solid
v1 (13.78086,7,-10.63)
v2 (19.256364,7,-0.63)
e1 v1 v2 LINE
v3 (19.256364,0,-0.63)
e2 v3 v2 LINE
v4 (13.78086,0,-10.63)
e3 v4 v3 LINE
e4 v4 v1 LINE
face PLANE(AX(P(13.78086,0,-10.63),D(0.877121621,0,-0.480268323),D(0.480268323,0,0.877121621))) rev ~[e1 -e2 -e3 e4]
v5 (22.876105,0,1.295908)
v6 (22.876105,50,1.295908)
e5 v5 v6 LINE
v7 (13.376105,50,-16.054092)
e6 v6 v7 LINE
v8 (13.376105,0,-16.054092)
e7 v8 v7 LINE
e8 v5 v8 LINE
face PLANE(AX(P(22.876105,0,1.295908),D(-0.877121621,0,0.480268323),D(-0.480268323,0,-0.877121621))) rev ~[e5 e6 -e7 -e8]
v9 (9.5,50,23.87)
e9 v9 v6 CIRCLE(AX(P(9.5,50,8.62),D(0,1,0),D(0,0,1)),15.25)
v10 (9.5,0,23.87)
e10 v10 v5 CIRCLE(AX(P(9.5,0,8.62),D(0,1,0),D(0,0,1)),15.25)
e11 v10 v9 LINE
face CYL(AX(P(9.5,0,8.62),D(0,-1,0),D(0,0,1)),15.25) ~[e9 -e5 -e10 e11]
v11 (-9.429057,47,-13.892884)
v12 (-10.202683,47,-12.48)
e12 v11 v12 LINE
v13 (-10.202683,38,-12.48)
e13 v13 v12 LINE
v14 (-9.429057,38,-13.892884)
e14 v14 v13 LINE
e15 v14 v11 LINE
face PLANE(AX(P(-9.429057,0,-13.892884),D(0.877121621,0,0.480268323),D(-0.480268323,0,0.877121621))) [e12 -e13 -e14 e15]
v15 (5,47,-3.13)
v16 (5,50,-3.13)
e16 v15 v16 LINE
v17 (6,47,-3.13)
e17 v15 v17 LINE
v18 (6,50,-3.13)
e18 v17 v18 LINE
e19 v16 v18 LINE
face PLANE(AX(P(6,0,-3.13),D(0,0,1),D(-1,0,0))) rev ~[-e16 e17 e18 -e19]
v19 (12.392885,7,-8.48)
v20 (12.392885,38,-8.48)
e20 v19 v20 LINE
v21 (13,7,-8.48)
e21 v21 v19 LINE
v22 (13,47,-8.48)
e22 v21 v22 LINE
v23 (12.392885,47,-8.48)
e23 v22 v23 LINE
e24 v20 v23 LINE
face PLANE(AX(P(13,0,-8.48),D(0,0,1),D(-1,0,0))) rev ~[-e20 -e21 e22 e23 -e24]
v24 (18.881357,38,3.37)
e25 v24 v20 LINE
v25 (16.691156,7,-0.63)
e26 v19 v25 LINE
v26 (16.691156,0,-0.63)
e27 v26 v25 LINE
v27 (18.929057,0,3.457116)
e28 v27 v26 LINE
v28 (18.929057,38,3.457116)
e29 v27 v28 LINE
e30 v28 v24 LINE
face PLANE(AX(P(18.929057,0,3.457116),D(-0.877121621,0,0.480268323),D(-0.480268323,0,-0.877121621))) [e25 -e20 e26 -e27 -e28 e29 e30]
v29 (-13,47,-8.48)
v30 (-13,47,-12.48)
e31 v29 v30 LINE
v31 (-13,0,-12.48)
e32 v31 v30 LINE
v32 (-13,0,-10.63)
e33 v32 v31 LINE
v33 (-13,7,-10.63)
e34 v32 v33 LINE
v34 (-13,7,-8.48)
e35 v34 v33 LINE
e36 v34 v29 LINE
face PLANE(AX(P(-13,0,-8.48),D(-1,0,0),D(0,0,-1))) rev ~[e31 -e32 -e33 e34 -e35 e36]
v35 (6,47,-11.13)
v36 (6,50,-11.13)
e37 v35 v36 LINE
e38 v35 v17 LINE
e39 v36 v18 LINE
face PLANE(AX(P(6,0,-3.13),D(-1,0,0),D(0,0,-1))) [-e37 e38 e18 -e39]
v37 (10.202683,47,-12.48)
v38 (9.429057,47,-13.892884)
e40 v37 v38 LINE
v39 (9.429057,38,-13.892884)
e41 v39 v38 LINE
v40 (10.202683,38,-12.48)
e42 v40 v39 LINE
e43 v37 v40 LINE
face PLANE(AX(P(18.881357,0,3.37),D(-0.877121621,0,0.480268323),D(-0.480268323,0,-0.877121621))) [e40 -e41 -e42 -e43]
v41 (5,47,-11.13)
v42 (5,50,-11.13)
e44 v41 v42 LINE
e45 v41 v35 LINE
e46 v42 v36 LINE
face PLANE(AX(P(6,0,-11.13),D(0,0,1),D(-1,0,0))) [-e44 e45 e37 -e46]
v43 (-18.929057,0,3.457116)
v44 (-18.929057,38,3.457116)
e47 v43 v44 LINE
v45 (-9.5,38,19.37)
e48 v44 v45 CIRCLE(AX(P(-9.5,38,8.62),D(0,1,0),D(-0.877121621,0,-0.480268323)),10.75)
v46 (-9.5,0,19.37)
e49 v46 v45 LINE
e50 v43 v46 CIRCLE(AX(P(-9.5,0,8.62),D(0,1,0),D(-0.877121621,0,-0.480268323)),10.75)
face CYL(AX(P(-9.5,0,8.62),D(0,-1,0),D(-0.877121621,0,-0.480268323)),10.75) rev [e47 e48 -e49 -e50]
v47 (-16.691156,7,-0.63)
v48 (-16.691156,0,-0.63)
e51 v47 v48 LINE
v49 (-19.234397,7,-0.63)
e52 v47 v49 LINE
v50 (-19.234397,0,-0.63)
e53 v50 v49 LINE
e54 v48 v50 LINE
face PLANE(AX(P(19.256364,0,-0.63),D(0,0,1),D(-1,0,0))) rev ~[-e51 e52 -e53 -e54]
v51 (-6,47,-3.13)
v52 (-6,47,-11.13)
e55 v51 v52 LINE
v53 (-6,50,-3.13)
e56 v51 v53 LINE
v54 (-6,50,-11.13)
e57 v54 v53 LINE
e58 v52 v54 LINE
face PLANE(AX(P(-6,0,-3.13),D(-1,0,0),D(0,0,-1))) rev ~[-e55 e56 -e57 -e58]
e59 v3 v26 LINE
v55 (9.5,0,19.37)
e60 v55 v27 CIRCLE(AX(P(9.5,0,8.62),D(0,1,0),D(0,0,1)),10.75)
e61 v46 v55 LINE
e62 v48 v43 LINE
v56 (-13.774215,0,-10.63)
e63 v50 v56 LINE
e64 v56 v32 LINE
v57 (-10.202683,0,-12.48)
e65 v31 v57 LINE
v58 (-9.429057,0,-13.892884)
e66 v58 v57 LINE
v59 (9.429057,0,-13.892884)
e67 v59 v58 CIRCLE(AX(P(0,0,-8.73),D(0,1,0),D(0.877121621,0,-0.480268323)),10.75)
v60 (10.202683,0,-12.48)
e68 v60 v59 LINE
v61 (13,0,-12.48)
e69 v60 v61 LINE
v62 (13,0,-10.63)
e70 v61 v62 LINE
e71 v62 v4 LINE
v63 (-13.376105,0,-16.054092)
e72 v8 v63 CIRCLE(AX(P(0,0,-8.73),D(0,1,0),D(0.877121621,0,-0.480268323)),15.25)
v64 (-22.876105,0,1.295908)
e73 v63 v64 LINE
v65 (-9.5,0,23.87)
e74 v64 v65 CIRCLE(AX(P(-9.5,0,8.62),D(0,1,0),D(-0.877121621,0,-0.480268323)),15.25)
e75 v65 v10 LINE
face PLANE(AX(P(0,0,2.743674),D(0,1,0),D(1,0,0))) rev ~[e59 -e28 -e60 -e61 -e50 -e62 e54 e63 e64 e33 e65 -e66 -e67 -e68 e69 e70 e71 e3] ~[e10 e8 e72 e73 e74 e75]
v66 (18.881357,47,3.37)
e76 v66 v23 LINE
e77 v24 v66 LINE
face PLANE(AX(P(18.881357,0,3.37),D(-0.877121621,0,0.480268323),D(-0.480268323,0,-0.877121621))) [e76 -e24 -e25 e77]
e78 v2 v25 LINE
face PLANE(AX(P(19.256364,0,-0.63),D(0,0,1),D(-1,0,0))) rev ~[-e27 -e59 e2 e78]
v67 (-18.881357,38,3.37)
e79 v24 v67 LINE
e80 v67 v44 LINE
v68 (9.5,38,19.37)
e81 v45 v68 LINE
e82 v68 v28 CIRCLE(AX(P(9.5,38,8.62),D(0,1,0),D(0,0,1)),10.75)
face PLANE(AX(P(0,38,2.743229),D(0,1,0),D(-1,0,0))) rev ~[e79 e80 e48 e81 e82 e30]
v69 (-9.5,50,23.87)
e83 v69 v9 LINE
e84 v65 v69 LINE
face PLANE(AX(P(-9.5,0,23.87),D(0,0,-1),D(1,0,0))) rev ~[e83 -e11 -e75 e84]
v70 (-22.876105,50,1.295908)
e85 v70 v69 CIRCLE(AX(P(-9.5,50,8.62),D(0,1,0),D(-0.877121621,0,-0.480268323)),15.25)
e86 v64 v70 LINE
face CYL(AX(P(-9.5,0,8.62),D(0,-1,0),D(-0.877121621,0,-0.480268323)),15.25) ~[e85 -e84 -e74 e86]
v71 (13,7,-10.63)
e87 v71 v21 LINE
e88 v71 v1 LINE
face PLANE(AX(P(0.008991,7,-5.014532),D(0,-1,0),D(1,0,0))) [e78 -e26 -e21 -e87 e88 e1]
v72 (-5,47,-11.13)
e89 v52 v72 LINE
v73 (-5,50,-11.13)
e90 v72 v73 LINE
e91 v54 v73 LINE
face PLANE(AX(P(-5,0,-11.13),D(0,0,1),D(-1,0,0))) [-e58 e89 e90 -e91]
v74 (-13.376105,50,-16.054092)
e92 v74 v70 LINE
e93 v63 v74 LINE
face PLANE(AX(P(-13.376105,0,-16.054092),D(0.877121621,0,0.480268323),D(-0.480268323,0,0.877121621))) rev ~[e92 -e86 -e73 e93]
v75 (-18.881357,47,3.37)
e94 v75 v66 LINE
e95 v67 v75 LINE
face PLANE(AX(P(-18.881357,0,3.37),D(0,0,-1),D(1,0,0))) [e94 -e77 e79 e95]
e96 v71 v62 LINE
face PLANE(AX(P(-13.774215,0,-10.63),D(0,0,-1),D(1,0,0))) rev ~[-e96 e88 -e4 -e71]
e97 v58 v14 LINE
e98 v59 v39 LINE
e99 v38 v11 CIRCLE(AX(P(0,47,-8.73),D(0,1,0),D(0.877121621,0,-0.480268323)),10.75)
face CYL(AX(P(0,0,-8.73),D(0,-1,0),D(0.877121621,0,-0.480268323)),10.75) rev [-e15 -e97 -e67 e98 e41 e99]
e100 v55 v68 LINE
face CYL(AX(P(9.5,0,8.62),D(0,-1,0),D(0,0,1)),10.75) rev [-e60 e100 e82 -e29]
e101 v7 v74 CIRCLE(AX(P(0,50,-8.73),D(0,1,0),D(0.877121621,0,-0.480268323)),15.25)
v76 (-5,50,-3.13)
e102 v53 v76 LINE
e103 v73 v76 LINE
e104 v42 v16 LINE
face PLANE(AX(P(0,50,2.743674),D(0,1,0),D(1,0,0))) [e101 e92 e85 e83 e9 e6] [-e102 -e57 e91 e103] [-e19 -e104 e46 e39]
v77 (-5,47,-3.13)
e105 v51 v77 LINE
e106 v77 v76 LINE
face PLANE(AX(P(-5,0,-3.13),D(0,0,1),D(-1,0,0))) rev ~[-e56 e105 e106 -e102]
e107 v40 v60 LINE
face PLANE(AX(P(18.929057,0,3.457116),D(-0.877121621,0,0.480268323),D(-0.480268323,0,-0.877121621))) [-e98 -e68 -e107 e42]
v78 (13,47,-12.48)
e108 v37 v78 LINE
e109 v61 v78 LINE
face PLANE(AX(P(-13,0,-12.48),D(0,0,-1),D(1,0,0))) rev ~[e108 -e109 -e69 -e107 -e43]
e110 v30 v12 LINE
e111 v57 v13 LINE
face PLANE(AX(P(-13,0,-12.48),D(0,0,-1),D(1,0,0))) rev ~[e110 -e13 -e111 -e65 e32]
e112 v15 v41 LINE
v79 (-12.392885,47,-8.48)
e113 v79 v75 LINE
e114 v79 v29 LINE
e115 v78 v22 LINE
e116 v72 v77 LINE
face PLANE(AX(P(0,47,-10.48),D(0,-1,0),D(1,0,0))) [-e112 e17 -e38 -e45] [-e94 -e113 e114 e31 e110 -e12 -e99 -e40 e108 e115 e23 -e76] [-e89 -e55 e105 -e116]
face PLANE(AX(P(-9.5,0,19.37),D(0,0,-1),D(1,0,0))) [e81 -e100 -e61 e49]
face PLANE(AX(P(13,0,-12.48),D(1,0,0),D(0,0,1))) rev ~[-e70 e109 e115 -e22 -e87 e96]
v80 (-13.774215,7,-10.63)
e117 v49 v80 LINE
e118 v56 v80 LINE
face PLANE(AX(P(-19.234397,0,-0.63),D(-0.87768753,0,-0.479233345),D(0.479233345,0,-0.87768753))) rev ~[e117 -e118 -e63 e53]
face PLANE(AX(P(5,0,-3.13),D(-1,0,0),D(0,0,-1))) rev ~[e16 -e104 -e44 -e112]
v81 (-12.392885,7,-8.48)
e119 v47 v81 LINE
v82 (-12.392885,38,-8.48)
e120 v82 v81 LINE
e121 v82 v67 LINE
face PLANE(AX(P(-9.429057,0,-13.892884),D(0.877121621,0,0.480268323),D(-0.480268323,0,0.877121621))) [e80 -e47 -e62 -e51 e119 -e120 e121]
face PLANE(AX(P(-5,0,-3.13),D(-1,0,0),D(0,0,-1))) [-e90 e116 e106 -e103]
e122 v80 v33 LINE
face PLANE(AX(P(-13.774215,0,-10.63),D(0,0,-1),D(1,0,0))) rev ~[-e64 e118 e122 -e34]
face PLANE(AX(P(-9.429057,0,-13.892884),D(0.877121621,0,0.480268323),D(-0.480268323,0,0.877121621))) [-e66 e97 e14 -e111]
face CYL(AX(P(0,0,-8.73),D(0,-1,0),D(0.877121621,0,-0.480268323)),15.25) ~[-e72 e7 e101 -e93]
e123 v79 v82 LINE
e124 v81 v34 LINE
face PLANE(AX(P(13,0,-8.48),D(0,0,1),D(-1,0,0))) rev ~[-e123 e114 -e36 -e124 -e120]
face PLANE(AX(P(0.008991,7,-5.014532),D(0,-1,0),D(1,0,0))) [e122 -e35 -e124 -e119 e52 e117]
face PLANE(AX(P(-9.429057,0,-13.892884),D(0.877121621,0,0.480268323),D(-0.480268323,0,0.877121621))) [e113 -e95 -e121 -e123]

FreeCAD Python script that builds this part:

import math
import FreeCAD as App
import Part
import Sketcher

V = App.Vector
Q = App.Units.Quantity

doc = App.newDocument("Part")
body = doc.addObject("PartDesign::Body", "Body")

# Sketch on XZ plane
sketch1 = body.newObject("Sketcher::SketchObject", "Sketch")
sketch1.AttachmentSupport = (doc.getObject("XZ_Plane"), [""])
sketch1.MapMode = "FlatFace"
sketch1.addGeometry([
    Part.LineSegment(V(-13.376105, -16.054092, 0), V(-22.876105, 1.295908, 0)),  # 0
    Part.ArcOfCircle(Part.Circle(V(-9.5, 8.62, 0), V(0, 0, 1), 15.25), math.radians(90), math.radians(208.702928)),  # 1
    Part.LineSegment(V(-9.5, 23.87, 0), V(9.5, 23.87, 0)),  # 2
    Part.ArcOfCircle(Part.Circle(V(9.5, 8.62, 0), V(0, 0, 1), 15.25), math.radians(-28.702928), math.radians(90)),  # 3
    Part.LineSegment(V(22.876105, 1.295908, 0), V(13.376105, -16.054092, 0)),  # 4
    Part.ArcOfCircle(Part.Circle(V(0, -8.73, 0), V(0, 0, 1), 15.25), math.radians(-151.297072), math.radians(-28.702928)),  # 5
], False)
sketch1.addConstraint([
    Sketcher.Constraint("Tangent", 0, 2, 1, 2),
    Sketcher.Constraint("Tangent", 1, 1, 2, 1),
    Sketcher.Constraint("Tangent", 2, 2, 3, 2),
    Sketcher.Constraint("Tangent", 3, 1, 4, 1),
    Sketcher.Constraint("Tangent", 4, 2, 5, 2),
    Sketcher.Constraint("Tangent", 5, 1, 0, 1),
    Sketcher.Constraint("Horizontal", 2),
    Sketcher.Constraint("Equal", 1, 3),
    Sketcher.Constraint("Equal", 3, 5),
    Sketcher.Constraint("Symmetric", 0, 2, 3, 1, -2),
    Sketcher.Constraint("DistanceX", 2, 1, 2, 2, Q("19 mm")),
    Sketcher.Constraint("Radius", 1, Q("15.25 mm")),
    Sketcher.Constraint("DistanceY", 5, 3, 1, 1, Q("32.6 mm")),
    Sketcher.Constraint("DistanceY", -1, 1, 1, 3, Q("8.62 mm")),
])
pad1 = body.newObject("PartDesign::Pad", "Pad")
pad1.Profile = sketch1
pad1.Length = 50
pad1.Reversed = True

# Sketch on XZ plane
sketch2 = body.newObject("Sketcher::SketchObject", "Sketch001")
sketch2.AttachmentSupport = (doc.getObject("XZ_Plane"), [""])
sketch2.MapMode = "FlatFace"
sketch2.addGeometry([
    Part.LineSegment(V(9.5, 19.37, 0), V(-9.5, 19.37, 0)),  # 0
    Part.ArcOfCircle(Part.Circle(V(-9.5, 8.62, 0), V(0, 0, 1), 10.75), math.radians(90), math.radians(208.702928)),  # 1
    Part.LineSegment(V(-18.929057, 3.457116, 0), V(-9.429057, -13.892884, 0)),  # 2
    Part.ArcOfCircle(Part.Circle(V(0, -8.73, 0), V(0, 0, 1), 10.75), math.radians(-151.297072), math.radians(-28.702928)),  # 3
    Part.LineSegment(V(9.429057, -13.892884, 0), V(18.929057, 3.457116, 0)),  # 4
    Part.ArcOfCircle(Part.Circle(V(9.5, 8.62, 0), V(0, 0, 1), 10.75), math.radians(-28.702928), math.radians(90)),  # 5
], False)
sketch2.addConstraint([
    Sketcher.Constraint("Tangent", 0, 2, 1, 1),
    Sketcher.Constraint("Tangent", 1, 2, 2, 1),
    Sketcher.Constraint("Tangent", 2, 2, 3, 1),
    Sketcher.Constraint("Tangent", 3, 2, 4, 1),
    Sketcher.Constraint("Tangent", 4, 2, 5, 1),
    Sketcher.Constraint("Tangent", 5, 2, 0, 1),
    Sketcher.Constraint("Horizontal", 0),
    Sketcher.Constraint("Equal", 1, 3),
    Sketcher.Constraint("Equal", 3, 5),
    Sketcher.Constraint("Symmetric", 2, 2, 3, 2, -2),
    Sketcher.Constraint("DistanceX", 0, 2, 0, 1, Q("19 mm")),
    Sketcher.Constraint("Radius", 1, Q("10.75 mm")),
    Sketcher.Constraint("DistanceY", 3, 3, 0, 2, Q("28.1 mm")),
    Sketcher.Constraint("DistanceY", -1, 1, 1, 3, Q("8.62 mm")),
])
pocket1 = body.newObject("PartDesign::Pocket", "Pocket")
pocket1.Profile = sketch2
pocket1.Length = 38

# Sketch on XZ plane
sketch3 = body.newObject("Sketcher::SketchObject", "Sketch002")
sketch3.AttachmentSupport = (doc.getObject("XZ_Plane"), [""])
sketch3.MapMode = "FlatFace"
sketch3.addGeometry([
    Part.LineSegment(V(9.429057, -13.892884, 0), V(18.881357, 3.37, 0)),
    Part.LineSegment(V(18.881357, 3.37, 0), V(-18.881357, 3.37, 0)),
    Part.LineSegment(V(-18.881357, 3.37, 0), V(-9.429057, -13.892884, 0)),
    Part.ArcOfCircle(Part.Circle(V(0, -8.73, 0), V(0, 0, 1), 10.75), math.radians(-151.297072), math.radians(-28.702928)),
], False)
sketch3.addConstraint([
    Sketcher.Constraint("Coincident", 0, 2, 1, 1),
    Sketcher.Constraint("Coincident", 1, 2, 2, 1),
    Sketcher.Constraint("Tangent", 2, 2, 3, 1),
    Sketcher.Constraint("Tangent", 3, 2, 0, 1),
    Sketcher.Constraint("Horizontal", 1),
    Sketcher.Constraint("Symmetric", 2, 2, 3, 2, -2),
    Sketcher.Constraint("Radius", 3, Q("10.75 mm")),
    Sketcher.Constraint("DistanceY", 3, 3, 0, 2, Q("12.1 mm")),
    Sketcher.Constraint("DistanceY", 3, 3, -1, 1, Q("8.73 mm")),
    Sketcher.Constraint("DistanceX", 1, 2, 2, 2, Q("9.4523 mm")),
])
pocket2 = body.newObject("PartDesign::Pocket", "Pocket001")
pocket2.Profile = sketch3
pocket2.Length = 47

# Sketch on XZ plane
sketch4 = body.newObject("Sketcher::SketchObject", "Sketch003")
sketch4.AttachmentSupport = (doc.getObject("XZ_Plane"), [""])
sketch4.MapMode = "FlatFace"
sketch4.addGeometry([
    Part.LineSegment(V(6, -11.13, 0), V(6, -3.13, 0)),  # 0
    Part.LineSegment(V(6, -3.13, 0), V(5, -3.13, 0)),  # 1
    Part.LineSegment(V(5, -3.13, 0), V(5, -11.13, 0)),  # 2
    Part.LineSegment(V(5, -11.13, 0), V(6, -11.13, 0)),  # 3
    Part.LineSegment(V(-5, -11.13, 0), V(-5, -3.13, 0)),  # 4
    Part.LineSegment(V(-5, -3.13, 0), V(-6, -3.13, 0)),  # 5
    Part.LineSegment(V(-6, -3.13, 0), V(-6, -11.13, 0)),  # 6
    Part.LineSegment(V(-6, -11.13, 0), V(-5, -11.13, 0)),  # 7
], False)
sketch4.addConstraint([
    Sketcher.Constraint("Coincident", 0, 2, 1, 1),
    Sketcher.Constraint("Coincident", 1, 2, 2, 1),
    Sketcher.Constraint("Coincident", 2, 2, 3, 1),
    Sketcher.Constraint("Coincident", 3, 2, 0, 1),
    Sketcher.Constraint("Coincident", 4, 2, 5, 1),
    Sketcher.Constraint("Coincident", 5, 2, 6, 1),
    Sketcher.Constraint("Coincident", 6, 2, 7, 1),
    Sketcher.Constraint("Coincident", 7, 2, 4, 1),
    Sketcher.Constraint("Vertical", 0),
    Sketcher.Constraint("Horizontal", 1),
    Sketcher.Constraint("Vertical", 2),
    Sketcher.Constraint("Horizontal", 3),
    Sketcher.Constraint("Vertical", 4),
    Sketcher.Constraint("Horizontal", 5),
    Sketcher.Constraint("Vertical", 6),
    Sketcher.Constraint("Horizontal", 7),
    Sketcher.Constraint("Symmetric", 1, 2, 4, 2, -2),
    Sketcher.Constraint("Symmetric", 3, 2, 6, 2, -2),
    Sketcher.Constraint("DistanceX", 1, 2, 1, 1, Q("1 mm")),
    Sketcher.Constraint("DistanceY", 0, 1, 0, 2, Q("8 mm")),
    Sketcher.Constraint("DistanceX", -1, 1, 0, 2, Q("6 mm")),
    Sketcher.Constraint("DistanceY", 0, 2, -1, 1, Q("3.13 mm")),
])
pocket3 = body.newObject("PartDesign::Pocket", "Pocket002")
pocket3.Profile = sketch4
pocket3.Type = "ThroughAll"

# Sketch on XZ plane
sketch5 = body.newObject("Sketcher::SketchObject", "Sketch004")
sketch5.AttachmentSupport = (doc.getObject("XZ_Plane"), [""])
sketch5.MapMode = "FlatFace"
sketch5.addGeometry([
    Part.LineSegment(V(-13.774215, -10.63, 0), V(13.78086, -10.63, 0)),
    Part.LineSegment(V(13.78086, -10.63, 0), V(19.256364, -0.63, 0)),
    Part.LineSegment(V(19.256364, -0.63, 0), V(-19.234397, -0.63, 0)),
    Part.LineSegment(V(-19.234397, -0.63, 0), V(-13.774215, -10.63, 0)),
], False)
sketch5.addConstraint([
    Sketcher.Constraint("Coincident", 0, 2, 1, 1),
    Sketcher.Constraint("Coincident", 1, 2, 2, 1),
    Sketcher.Constraint("Coincident", 2, 2, 3, 1),
    Sketcher.Constraint("Coincident", 3, 2, 0, 1),
    Sketcher.Constraint("Horizontal", 0),
    Sketcher.Constraint("Horizontal", 2),
    Sketcher.Constraint("DistanceY", 0, 2, 1, 2, Q("10 mm")),
    Sketcher.Constraint("DistanceY", 0, 2, -1, 1, Q("10.63 mm")),
    Sketcher.Constraint("DistanceX", 2, 2, 2, 1, Q("38.490761 mm")),
    Sketcher.Constraint("DistanceX", 0, 1, 0, 2, Q("27.555075 mm")),
    Sketcher.Constraint("DistanceX", -1, 1, 0, 2, Q("13.78086 mm")),
    Sketcher.Constraint("DistanceX", 2, 2, 3, 2, Q("5.460182 mm")),
])
pocket4 = body.newObject("PartDesign::Pocket", "Pocket003")
pocket4.Profile = sketch5
pocket4.Length = 7

# Sketch on XZ plane
sketch6 = body.newObject("Sketcher::SketchObject", "Sketch005")
sketch6.AttachmentSupport = (doc.getObject("XZ_Plane"), [""])
sketch6.MapMode = "FlatFace"
sketch6.addGeometry([
    Part.LineSegment(V(13, -12.48, 0), V(13, -8.48, 0)),
    Part.LineSegment(V(13, -8.48, 0), V(-13, -8.48, 0)),
    Part.LineSegment(V(-13, -8.48, 0), V(-13, -12.48, 0)),
    Part.LineSegment(V(-13, -12.48, 0), V(13, -12.48, 0)),
], False)
sketch6.addConstraint([
    Sketcher.Constraint("Coincident", 0, 2, 1, 1),
    Sketcher.Constraint("Coincident", 1, 2, 2, 1),
    Sketcher.Constraint("Coincident", 2, 2, 3, 1),
    Sketcher.Constraint("Coincident", 3, 2, 0, 1),
    Sketcher.Constraint("Vertical", 0),
    Sketcher.Constraint("Horizontal", 1),
    Sketcher.Constraint("Vertical", 2),
    Sketcher.Constraint("Horizontal", 3),
    Sketcher.Constraint("DistanceX", 1, 2, 1, 1, Q("26 mm")),
    Sketcher.Constraint("DistanceY", 0, 1, 0, 2, Q("4 mm")),
    Sketcher.Constraint("DistanceX", -1, 1, 0, 2, Q("13 mm")),
    Sketcher.Constraint("DistanceY", 0, 2, -1, 1, Q("8.48 mm")),
])
pocket5 = body.newObject("PartDesign::Pocket", "Pocket004")
pocket5.Profile = sketch6
pocket5.Length = 47

doc.recompute()
